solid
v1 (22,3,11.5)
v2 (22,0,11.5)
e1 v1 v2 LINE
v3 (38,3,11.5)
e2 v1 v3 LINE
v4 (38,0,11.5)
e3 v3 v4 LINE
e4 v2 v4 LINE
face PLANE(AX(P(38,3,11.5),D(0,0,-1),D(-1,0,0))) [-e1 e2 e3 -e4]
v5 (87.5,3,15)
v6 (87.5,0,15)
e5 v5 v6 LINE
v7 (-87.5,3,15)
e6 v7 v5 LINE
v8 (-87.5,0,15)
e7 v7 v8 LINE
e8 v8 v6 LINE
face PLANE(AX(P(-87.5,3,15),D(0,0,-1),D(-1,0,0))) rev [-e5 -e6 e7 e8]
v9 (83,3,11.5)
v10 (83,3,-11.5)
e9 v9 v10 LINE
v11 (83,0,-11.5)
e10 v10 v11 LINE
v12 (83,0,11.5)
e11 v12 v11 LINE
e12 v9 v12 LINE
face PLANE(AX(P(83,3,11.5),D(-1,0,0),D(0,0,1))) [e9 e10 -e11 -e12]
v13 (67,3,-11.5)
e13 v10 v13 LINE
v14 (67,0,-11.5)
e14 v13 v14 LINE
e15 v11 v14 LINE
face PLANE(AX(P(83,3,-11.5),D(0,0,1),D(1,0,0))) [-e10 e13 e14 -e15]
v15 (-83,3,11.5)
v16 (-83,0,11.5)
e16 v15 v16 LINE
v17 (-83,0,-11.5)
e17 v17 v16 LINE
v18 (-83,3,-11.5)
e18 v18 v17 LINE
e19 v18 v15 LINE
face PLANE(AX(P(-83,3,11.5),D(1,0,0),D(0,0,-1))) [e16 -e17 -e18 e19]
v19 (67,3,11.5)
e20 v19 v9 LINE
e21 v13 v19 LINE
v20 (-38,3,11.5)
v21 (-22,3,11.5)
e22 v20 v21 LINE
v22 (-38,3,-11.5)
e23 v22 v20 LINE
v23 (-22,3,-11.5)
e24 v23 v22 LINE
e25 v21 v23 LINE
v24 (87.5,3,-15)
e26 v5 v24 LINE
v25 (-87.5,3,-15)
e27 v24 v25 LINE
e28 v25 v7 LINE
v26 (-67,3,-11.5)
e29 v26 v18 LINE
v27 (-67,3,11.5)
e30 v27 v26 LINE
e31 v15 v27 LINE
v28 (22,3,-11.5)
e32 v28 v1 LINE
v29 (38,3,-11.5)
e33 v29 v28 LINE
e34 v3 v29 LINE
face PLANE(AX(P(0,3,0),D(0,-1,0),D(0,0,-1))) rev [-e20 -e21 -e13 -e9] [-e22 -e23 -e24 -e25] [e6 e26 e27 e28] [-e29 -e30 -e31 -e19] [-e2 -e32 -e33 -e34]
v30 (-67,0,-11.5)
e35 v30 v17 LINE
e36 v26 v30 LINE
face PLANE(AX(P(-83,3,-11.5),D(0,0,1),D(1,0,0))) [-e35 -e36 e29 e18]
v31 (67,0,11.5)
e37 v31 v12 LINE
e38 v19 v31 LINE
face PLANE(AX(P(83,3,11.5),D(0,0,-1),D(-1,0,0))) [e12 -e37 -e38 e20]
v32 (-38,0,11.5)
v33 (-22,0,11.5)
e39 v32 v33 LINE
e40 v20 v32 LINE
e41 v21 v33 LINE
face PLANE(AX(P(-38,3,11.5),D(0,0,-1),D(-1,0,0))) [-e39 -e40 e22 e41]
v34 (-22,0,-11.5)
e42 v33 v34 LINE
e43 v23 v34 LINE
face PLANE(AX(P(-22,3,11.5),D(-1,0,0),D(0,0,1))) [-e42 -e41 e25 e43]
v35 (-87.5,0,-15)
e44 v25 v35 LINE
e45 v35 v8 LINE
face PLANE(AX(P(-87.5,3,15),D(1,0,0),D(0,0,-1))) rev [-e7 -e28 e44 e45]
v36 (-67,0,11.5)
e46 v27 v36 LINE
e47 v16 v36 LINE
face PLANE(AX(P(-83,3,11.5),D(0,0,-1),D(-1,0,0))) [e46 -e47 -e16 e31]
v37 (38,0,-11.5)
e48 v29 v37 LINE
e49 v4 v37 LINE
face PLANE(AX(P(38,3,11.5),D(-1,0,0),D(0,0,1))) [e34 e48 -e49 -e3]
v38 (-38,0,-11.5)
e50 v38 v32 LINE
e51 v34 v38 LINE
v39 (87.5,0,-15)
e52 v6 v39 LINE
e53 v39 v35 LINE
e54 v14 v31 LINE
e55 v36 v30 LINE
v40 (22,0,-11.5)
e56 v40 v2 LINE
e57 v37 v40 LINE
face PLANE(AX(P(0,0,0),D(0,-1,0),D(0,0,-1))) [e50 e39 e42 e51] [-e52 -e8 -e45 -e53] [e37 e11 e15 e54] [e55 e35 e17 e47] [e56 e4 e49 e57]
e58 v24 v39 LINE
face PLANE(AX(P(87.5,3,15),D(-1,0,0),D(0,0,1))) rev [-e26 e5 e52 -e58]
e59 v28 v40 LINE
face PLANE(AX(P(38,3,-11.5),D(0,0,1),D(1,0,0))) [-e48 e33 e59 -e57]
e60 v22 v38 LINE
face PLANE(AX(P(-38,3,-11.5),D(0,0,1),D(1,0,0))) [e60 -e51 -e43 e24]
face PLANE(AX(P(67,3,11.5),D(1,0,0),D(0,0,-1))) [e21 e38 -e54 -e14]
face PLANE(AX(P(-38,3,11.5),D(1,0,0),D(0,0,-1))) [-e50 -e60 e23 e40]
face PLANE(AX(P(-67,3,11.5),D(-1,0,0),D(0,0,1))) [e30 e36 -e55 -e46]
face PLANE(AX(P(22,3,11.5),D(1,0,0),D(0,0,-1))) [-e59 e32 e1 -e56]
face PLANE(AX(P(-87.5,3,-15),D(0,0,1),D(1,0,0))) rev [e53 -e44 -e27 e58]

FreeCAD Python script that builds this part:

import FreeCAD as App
import Part
import Sketcher
from FreeCAD import Vector
Q = App.Units.Quantity

doc = App.newDocument("Part")
body = doc.addObject("PartDesign::Body", "Body")

sketch1 = doc.addObject("Sketcher::SketchObject", "Sketch")
body.addObject(sketch1)
sketch1.AttachmentSupport = (doc.XZ_Plane, [""])
sketch1.MapMode = "FlatFace"
sketch1.addGeometry(Part.LineSegment(Vector(-88, -15, 0), Vector(-88, 15, 0)), False)
sketch1.addGeometry(Part.LineSegment(Vector(-88, 15, 0), Vector(88, 15, 0)), False)
sketch1.addGeometry(Part.LineSegment(Vector(88, 15, 0), Vector(88, -15, 0)), False)
sketch1.addGeometry(Part.LineSegment(Vector(88, -15, 0), Vector(-88, -15, 0)), False)
sketch1.addGeometry(Part.LineSegment(Vector(-67, 12, 0), Vector(-83, 12, 0)), False)
sketch1.addGeometry(Part.LineSegment(Vector(-83, 12, 0), Vector(-83, -12, 0)), False)
sketch1.addGeometry(Part.LineSegment(Vector(-83, -12, 0), Vector(-67, -12, 0)), False)
sketch1.addGeometry(Part.LineSegment(Vector(-67, -12, 0), Vector(-67, 12, 0)), False)
sketch1.addGeometry(Part.LineSegment(Vector(-22, 12, 0), Vector(-38, 12, 0)), False)
sketch1.addGeometry(Part.LineSegment(Vector(-38, 12, 0), Vector(-38, -12, 0)), False)
sketch1.addGeometry(Part.LineSegment(Vector(-38, -12, 0), Vector(-22, -12, 0)), False)
sketch1.addGeometry(Part.LineSegment(Vector(-22, -12, 0), Vector(-22, 12, 0)), False)
sketch1.addGeometry(Part.LineSegment(Vector(38, 12, 0), Vector(22, 12, 0)), False)
sketch1.addGeometry(Part.LineSegment(Vector(22, 12, 0), Vector(22, -12, 0)), False)
sketch1.addGeometry(Part.LineSegment(Vector(22, -12, 0), Vector(38, -12, 0)), False)
sketch1.addGeometry(Part.LineSegment(Vector(38, -12, 0), Vector(38, 12, 0)), False)
sketch1.addGeometry(Part.LineSegment(Vector(83, 12, 0), Vector(67, 12, 0)), False)
sketch1.addGeometry(Part.LineSegment(Vector(67, 12, 0), Vector(67, -12, 0)), False)
sketch1.addGeometry(Part.LineSegment(Vector(67, -12, 0), Vector(83, -12, 0)), False)
sketch1.addGeometry(Part.LineSegment(Vector(83, -12, 0), Vector(83, 12, 0)), False)
sketch1.addConstraint(Sketcher.Constraint("Coincident", 0, 2, 1, 1))
sketch1.addConstraint(Sketcher.Constraint("Coincident", 1, 2, 2, 1))
sketch1.addConstraint(Sketcher.Constraint("Coincident", 2, 2, 3, 1))
sketch1.addConstraint(Sketcher.Constraint("Coincident", 3, 2, 0, 1))
sketch1.addConstraint(Sketcher.Constraint("Coincident", 4, 2, 5, 1))
sketch1.addConstraint(Sketcher.Constraint("Coincident", 5, 2, 6, 1))
sketch1.addConstraint(Sketcher.Constraint("Coincident", 6, 2, 7, 1))
sketch1.addConstraint(Sketcher.Constraint("Coincident", 7, 2, 4, 1))
sketch1.addConstraint(Sketcher.Constraint("Coincident", 8, 2, 9, 1))
sketch1.addConstraint(Sketcher.Constraint("Coincident", 9, 2, 10, 1))
sketch1.addConstraint(Sketcher.Constraint("Coincident", 10, 2, 11, 1))
sketch1.addConstraint(Sketcher.Constraint("Coincident", 11, 2, 8, 1))
sketch1.addConstraint(Sketcher.Constraint("Coincident", 12, 2, 13, 1))
sketch1.addConstraint(Sketcher.Constraint("Coincident", 13, 2, 14, 1))
sketch1.addConstraint(Sketcher.Constraint("Coincident", 14, 2, 15, 1))
sketch1.addConstraint(Sketcher.Constraint("Coincident", 15, 2, 12, 1))
sketch1.addConstraint(Sketcher.Constraint("Coincident", 16, 2, 17, 1))
sketch1.addConstraint(Sketcher.Constraint("Coincident", 17, 2, 18, 1))
sketch1.addConstraint(Sketcher.Constraint("Coincident", 18, 2, 19, 1))
sketch1.addConstraint(Sketcher.Constraint("Coincident", 19, 2, 16, 1))
sketch1.addConstraint(Sketcher.Constraint("Vertical", 0))
sketch1.addConstraint(Sketcher.Constraint("Horizontal", 1))
sketch1.addConstraint(Sketcher.Constraint("Vertical", 2))
sketch1.addConstraint(Sketcher.Constraint("Horizontal", 3))
sketch1.addConstraint(Sketcher.Constraint("Horizontal", 4))
sketch1.addConstraint(Sketcher.Constraint("Vertical", 5))
sketch1.addConstraint(Sketcher.Constraint("Horizontal", 6))
sketch1.addConstraint(Sketcher.Constraint("Vertical", 7))
sketch1.addConstraint(Sketcher.Constraint("Horizontal", 8))
sketch1.addConstraint(Sketcher.Constraint("Vertical", 9))
sketch1.addConstraint(Sketcher.Constraint("Horizontal", 10))
sketch1.addConstraint(Sketcher.Constraint("Vertical", 11))
sketch1.addConstraint(Sketcher.Constraint("Horizontal", 12))
sketch1.addConstraint(Sketcher.Constraint("Vertical", 13))
sketch1.addConstraint(Sketcher.Constraint("Horizontal", 14))
sketch1.addConstraint(Sketcher.Constraint("Vertical", 15))
sketch1.addConstraint(Sketcher.Constraint("Horizontal", 16))
sketch1.addConstraint(Sketcher.Constraint("Vertical", 17))
sketch1.addConstraint(Sketcher.Constraint("Horizontal", 18))
sketch1.addConstraint(Sketcher.Constraint("Vertical", 19))
sketch1.addConstraint(Sketcher.Constraint("Symmetric", 0, 2, 2, 2, -1, 1))
sketch1.addConstraint(Sketcher.Constraint("Symmetric", 10, 2, 12, 2, -1, 1))
sketch1.addConstraint(Sketcher.Constraint("Symmetric", 8, 2, 14, 2, -1, 1))
sketch1.addConstraint(Sketcher.Constraint("Symmetric", 6, 2, 16, 2, -1, 1))
sketch1.addConstraint(Sketcher.Constraint("Symmetric", 4, 2, 18, 2, -1, 1))
sketch1.addConstraint(Sketcher.Constraint("Horizontal", 7, 2, 8, 2))
sketch1.addConstraint(Sketcher.Constraint("Horizontal", 6, 2, 9, 2))
sketch1.addConstraint(Sketcher.Constraint("Horizontal", 11, 2, 12, 2))
sketch1.addConstraint(Sketcher.Constraint("Equal", 6, 8))
sketch1.addConstraint(Sketcher.Constraint("DistanceX", 1, 1, 1, 2, Q("175 mm")))
sketch1.addConstraint(Sketcher.Constraint("DistanceX", 4, 2, 4, 1, Q("16 mm")))
sketch1.addConstraint(Sketcher.Constraint("DistanceY", 0, 1, 0, 2, Q("30 mm")))
sketch1.addConstraint(Sketcher.Constraint("DistanceY", 5, 2, 5, 1, Q("23 mm")))
sketch1.addConstraint(Sketcher.Constraint("DistanceX", 4, 2, -1, 1, Q("83 mm")))
sketch1.addConstraint(Sketcher.Constraint("DistanceX", 8, 2, -1, 1, Q("38 mm")))
pad1 = doc.addObject("PartDesign::Pad", "Pad")
body.addObject(pad1)
pad1.Profile = sketch1
pad1.Length = 3
pad1.Reversed = True

doc.recompute()
